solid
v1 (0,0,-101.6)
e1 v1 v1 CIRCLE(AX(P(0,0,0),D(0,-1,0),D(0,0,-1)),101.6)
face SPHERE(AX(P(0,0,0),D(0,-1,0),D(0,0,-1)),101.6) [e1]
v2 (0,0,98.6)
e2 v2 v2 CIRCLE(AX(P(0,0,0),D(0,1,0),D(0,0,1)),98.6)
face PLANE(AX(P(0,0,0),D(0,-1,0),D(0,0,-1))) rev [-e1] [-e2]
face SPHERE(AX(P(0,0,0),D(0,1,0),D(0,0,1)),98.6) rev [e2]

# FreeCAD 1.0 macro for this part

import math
import FreeCAD as App
import Part
import Sketcher

V = App.Vector

doc = App.newDocument("Part")
body = doc.addObject("PartDesign::Body", "Body")

# Sketch on XZ plane
sketch1 = body.newObject("Sketcher::SketchObject", "Sketch")
sketch1.AttachmentSupport = (doc.getObject("XZ_Plane"), [""])
sketch1.MapMode = "FlatFace"
sketch1.addGeometry([
    Part.LineSegment(V(-98.6, 0, 0), V(-101.6, 0, 0)),
    Part.ArcOfCircle(Part.Circle(V(0, 0, 0), V(0, 0, 1), 101.6), math.radians(0), math.radians(180)),
    Part.LineSegment(V(101.6, 0, 0), V(98.6, 0, 0)),
    Part.ArcOfCircle(Part.Circle(V(0, 0, 0), V(0, 0, 1), 98.6), math.radians(0), math.radians(180)),
], False)
sketch1.addConstraint([
    Sketcher.Constraint("Coincident", 0, 2, 1, 2),
    Sketcher.Constraint("Coincident", 1, 1, 2, 1),
    Sketcher.Constraint("Coincident", 2, 2, 3, 1),
    Sketcher.Constraint("Coincident", 3, 2, 0, 1),
    Sketcher.Constraint("Horizontal", 0),
    Sketcher.Constraint("Horizontal", 2),
    Sketcher.Constraint("Coincident", 1, 3, -1, 1),
    Sketcher.Constraint("Coincident", 3, 3, -1, 1),
    Sketcher.Constraint("PointOnObject", 0, 2, -1),
    Sketcher.Constraint("PointOnObject", 1, 1, -1),
    Sketcher.Constraint("Radius", 1, 101.6),
    Sketcher.Constraint("Radius", 3, 98.6),
])
revolution = body.newObject("PartDesign::Revolution", "Revolution")
revolution.Profile = sketch1
revolution.ReferenceAxis = (sketch1, ["H_Axis"])
revolution.Angle = 180

doc.recompute()
